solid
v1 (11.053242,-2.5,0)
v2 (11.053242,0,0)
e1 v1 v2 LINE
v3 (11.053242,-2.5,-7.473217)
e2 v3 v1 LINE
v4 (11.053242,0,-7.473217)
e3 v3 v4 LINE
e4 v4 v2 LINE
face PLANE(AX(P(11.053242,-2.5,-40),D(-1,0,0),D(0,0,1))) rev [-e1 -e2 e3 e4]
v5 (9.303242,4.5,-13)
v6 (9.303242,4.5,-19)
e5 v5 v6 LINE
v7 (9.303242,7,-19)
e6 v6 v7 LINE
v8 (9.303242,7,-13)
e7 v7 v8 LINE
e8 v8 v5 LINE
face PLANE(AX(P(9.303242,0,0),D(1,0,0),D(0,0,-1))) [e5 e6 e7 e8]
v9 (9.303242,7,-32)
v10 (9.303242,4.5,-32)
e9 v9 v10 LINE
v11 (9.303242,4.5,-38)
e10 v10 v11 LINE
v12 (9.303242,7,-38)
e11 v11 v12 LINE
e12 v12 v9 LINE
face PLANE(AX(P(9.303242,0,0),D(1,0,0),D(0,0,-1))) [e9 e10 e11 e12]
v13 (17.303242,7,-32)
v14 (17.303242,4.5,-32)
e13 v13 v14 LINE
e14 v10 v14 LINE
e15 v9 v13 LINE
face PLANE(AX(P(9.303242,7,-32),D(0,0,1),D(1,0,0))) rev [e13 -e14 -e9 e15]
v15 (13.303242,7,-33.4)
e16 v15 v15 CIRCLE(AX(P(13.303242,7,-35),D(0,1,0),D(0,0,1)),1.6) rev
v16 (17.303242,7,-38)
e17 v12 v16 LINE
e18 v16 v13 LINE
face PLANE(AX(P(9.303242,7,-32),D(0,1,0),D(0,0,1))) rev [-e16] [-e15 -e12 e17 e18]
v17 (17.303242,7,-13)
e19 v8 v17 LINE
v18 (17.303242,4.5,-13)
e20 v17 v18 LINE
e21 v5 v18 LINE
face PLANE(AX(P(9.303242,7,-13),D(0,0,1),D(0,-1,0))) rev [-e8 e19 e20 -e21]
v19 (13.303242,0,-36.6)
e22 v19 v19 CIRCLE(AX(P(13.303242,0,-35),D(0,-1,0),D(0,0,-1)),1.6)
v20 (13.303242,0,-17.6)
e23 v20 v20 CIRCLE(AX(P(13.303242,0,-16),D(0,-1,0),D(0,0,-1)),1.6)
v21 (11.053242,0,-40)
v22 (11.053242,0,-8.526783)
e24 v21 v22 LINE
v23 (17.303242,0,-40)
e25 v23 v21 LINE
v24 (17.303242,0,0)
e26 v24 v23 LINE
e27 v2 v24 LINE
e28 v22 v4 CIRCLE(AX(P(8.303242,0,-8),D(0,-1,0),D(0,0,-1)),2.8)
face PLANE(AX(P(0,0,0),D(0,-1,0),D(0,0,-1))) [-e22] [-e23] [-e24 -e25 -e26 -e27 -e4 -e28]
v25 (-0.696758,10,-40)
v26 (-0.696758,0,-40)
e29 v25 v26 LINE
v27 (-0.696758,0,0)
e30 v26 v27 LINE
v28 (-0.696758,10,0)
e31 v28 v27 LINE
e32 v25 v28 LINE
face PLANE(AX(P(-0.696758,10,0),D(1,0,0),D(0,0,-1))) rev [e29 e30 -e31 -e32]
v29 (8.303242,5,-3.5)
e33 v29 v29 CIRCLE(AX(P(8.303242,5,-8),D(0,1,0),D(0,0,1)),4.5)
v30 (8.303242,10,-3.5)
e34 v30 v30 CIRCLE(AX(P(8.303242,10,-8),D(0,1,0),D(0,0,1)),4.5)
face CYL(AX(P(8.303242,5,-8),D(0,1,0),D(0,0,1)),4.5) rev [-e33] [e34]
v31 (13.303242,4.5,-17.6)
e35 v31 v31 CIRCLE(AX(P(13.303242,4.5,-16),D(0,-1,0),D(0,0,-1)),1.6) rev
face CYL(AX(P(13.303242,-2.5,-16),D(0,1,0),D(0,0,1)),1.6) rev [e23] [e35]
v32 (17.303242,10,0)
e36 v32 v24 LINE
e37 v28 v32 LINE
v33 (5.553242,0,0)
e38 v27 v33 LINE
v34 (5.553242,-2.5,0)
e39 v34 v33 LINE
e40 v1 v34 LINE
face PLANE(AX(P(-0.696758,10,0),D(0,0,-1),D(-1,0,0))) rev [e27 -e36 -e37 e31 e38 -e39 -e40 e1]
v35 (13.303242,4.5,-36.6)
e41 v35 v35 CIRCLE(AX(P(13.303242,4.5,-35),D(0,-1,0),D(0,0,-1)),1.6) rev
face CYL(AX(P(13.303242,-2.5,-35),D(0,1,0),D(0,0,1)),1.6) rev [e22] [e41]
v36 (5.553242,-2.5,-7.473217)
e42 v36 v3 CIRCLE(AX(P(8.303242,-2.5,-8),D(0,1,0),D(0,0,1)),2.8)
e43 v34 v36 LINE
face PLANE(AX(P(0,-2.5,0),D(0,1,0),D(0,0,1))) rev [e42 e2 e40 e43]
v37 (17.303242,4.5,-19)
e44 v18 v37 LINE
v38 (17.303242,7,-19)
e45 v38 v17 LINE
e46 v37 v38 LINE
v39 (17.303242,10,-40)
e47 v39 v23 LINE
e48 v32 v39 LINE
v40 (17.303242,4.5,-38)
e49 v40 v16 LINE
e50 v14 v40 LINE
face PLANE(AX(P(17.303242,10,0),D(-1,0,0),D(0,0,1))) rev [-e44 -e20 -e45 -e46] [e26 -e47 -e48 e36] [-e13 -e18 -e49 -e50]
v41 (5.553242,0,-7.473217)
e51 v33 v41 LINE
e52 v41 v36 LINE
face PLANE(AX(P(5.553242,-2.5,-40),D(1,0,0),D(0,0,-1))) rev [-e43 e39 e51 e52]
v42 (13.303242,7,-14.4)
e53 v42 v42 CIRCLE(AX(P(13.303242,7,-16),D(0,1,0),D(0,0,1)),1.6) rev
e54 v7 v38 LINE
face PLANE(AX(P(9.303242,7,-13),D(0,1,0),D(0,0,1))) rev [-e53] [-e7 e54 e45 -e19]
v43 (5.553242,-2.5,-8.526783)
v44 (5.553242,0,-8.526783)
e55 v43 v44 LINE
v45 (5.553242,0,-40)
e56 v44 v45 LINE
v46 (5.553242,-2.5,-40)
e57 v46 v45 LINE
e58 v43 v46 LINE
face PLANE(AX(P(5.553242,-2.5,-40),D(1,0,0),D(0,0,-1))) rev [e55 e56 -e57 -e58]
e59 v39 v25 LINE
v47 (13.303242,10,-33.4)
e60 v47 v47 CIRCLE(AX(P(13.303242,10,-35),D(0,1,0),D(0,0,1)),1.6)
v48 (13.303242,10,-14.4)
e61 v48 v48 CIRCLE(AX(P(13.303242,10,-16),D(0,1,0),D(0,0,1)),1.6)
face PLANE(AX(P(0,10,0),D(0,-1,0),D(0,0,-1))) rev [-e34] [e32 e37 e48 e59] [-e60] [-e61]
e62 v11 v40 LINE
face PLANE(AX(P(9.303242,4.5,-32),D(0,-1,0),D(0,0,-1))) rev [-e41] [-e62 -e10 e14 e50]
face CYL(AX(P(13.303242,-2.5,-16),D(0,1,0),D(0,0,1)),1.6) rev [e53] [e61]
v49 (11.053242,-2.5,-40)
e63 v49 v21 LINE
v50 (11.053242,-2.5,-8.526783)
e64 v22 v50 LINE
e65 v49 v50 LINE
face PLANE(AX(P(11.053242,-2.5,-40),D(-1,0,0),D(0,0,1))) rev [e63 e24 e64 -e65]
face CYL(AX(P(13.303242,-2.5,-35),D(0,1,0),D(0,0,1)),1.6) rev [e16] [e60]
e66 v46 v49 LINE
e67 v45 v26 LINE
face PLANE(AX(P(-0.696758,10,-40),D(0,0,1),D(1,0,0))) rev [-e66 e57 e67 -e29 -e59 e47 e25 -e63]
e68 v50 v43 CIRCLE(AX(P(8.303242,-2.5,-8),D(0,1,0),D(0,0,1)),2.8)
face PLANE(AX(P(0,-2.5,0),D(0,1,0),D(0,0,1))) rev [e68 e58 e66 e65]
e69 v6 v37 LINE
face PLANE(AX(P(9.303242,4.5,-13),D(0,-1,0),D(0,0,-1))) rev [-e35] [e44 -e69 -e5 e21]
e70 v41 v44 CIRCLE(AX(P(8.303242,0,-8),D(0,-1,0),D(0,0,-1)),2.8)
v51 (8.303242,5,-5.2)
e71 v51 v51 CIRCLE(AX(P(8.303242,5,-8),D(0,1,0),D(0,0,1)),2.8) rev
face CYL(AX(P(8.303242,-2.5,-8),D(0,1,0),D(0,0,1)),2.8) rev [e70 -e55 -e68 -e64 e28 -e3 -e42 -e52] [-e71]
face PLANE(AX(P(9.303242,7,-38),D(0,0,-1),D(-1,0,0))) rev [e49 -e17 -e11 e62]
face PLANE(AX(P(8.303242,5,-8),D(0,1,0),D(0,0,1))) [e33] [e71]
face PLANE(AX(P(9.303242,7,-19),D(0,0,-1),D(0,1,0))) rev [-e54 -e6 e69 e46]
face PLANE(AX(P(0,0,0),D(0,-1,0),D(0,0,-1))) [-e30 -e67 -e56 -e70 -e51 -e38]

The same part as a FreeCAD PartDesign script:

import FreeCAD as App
import Part
import Sketcher
from FreeCAD import Vector
Q = App.Units.Quantity


def add_polygon(sketch, points):
    """Adds a closed chain of lines whose ends are joined by coincident constraints."""
    first, n = sketch.GeometryCount, len(points)
    for a, b in zip(points, points[1:] + points[:1]):
        sketch.addGeometry(Part.LineSegment(App.Vector(*a, 0), App.Vector(*b, 0)), False)
    for i in range(n):
        sketch.addConstraint(Sketcher.Constraint("Coincident", first + i, 2, first + (i + 1) % n, 1))

doc = App.newDocument("Part")
body = doc.addObject("PartDesign::Body", "Body")

sketch1 = doc.addObject("Sketcher::SketchObject", "Sketch")
body.addObject(sketch1)
sketch1.AttachmentSupport = (doc.XZ_Plane, [""])
sketch1.MapMode = "FlatFace"
add_polygon(sketch1, [(-0.696758, -40), (-0.696758, 0), (17.303242, 0), (17.303242, -40)])
sketch1.addConstraint(Sketcher.Constraint("Vertical", 0))
sketch1.addConstraint(Sketcher.Constraint("Horizontal", 1))
sketch1.addConstraint(Sketcher.Constraint("Vertical", 2))
sketch1.addConstraint(Sketcher.Constraint("Horizontal", 3))
sketch1.addConstraint(Sketcher.Constraint("PointOnObject", 0, 2, -1))
sketch1.addConstraint(Sketcher.Constraint("DistanceX", 1, 1, 1, 2, Q("18 mm")))
sketch1.addConstraint(Sketcher.Constraint("DistanceY", 0, 1, 0, 2, Q("40 mm")))
sketch1.addConstraint(Sketcher.Constraint("DistanceX", 0, 2, -1, 1, Q("0.696758 mm")))
pad1 = doc.addObject("PartDesign::Pad", "Pad")
body.addObject(pad1)
pad1.Profile = sketch1
pad1.Length = 10
pad1.Reversed = True

sketch2 = doc.addObject("Sketcher::SketchObject", "Sketch001")
body.addObject(sketch2)
sketch2.AttachmentSupport = (doc.XZ_Plane, [""])
sketch2.MapMode = "FlatFace"
add_polygon(sketch2, [(5.553242, 0), (5.553242, -40), (11.053242, -40), (11.053242, 0)])
sketch2.addConstraint(Sketcher.Constraint("Vertical", 0))
sketch2.addConstraint(Sketcher.Constraint("Horizontal", 1))
sketch2.addConstraint(Sketcher.Constraint("Vertical", 2))
sketch2.addConstraint(Sketcher.Constraint("Horizontal", 3))
sketch2.addConstraint(Sketcher.Constraint("PointOnObject", 2, 2, -1))
sketch2.addConstraint(Sketcher.Constraint("DistanceY", 0, 2, 0, 1, Q("40 mm")))
sketch2.addConstraint(Sketcher.Constraint("DistanceX", 1, 1, 1, 2, Q("5.5 mm")))
sketch2.addConstraint(Sketcher.Constraint("DistanceX", -1, 1, 0, 2, Q("5.553242 mm")))
pad2 = doc.addObject("PartDesign::Pad", "Pad001")
body.addObject(pad2)
pad2.Profile = sketch2
pad2.Length = 2.5

sketch3 = doc.addObject("Sketcher::SketchObject", "Sketch002")
body.addObject(sketch3)
sketch3.AttachmentSupport = (doc.XZ_Plane, [""])
sketch3.MapMode = "FlatFace"
sketch3.AttachmentOffset = App.Placement(Vector(0, 0, -10), App.Rotation())
sketch3.addGeometry(Part.Circle(Vector(8.303242, -8, 0), Vector(0, 0, 1), 2.8), False)
sketch3.addConstraint(Sketcher.Constraint("Diameter", 0, Q("5.6 mm")))
sketch3.addConstraint(Sketcher.Constraint("DistanceY", 0, 3, -1, 1, Q("8 mm")))
sketch3.addConstraint(Sketcher.Constraint("DistanceX", -1, 1, 0, 3, Q("8.303242 mm")))
pocket1 = doc.addObject("PartDesign::Pocket", "Pocket")
body.addObject(pocket1)
pocket1.Profile = sketch3
pocket1.Type = "ThroughAll"
pocket1.Reversed = True

sketch4 = doc.addObject("Sketcher::SketchObject", "Sketch003")
body.addObject(sketch4)
sketch4.AttachmentSupport = (doc.XZ_Plane, [""])
sketch4.MapMode = "FlatFace"
sketch4.AttachmentOffset = App.Placement(Vector(0, 0, -10), App.Rotation())
sketch4.addGeometry(Part.Circle(Vector(8.303242, -8, 0), Vector(0, 0, 1), 4.5), False)
sketch4.addConstraint(Sketcher.Constraint("Diameter", 0, Q("9 mm")))
sketch4.addConstraint(Sketcher.Constraint("DistanceY", 0, 3, -1, 1, Q("8 mm")))
sketch4.addConstraint(Sketcher.Constraint("DistanceX", -1, 1, 0, 3, Q("8.303242 mm")))
pocket2 = doc.addObject("PartDesign::Pocket", "Pocket001")
body.addObject(pocket2)
pocket2.Profile = sketch4
pocket2.Length = 5
pocket2.Reversed = True

sketch5 = doc.addObject("Sketcher::SketchObject", "Sketch004")
body.addObject(sketch5)
sketch5.AttachmentSupport = (doc.XZ_Plane, [""])
sketch5.MapMode = "FlatFace"
sketch5.AttachmentOffset = App.Placement(Vector(0, 0, -10), App.Rotation())
sketch5.addGeometry(Part.Circle(Vector(13.303242, -16, 0), Vector(0, 0, 1), 1.6), False)
sketch5.addGeometry(Part.Circle(Vector(13.303242, -35, 0), Vector(0, 0, 1), 1.6), False)
sketch5.addConstraint(Sketcher.Constraint("Equal", 0, 1))
sketch5.addConstraint(Sketcher.Constraint("Vertical", 0, 3, 1, 3))
sketch5.addConstraint(Sketcher.Constraint("Diameter", 0, Q("3.2 mm")))
sketch5.addConstraint(Sketcher.Constraint("DistanceY", 0, 3, -1, 1, Q("16 mm")))
sketch5.addConstraint(Sketcher.Constraint("DistanceY", 1, 3, -1, 1, Q("35 mm")))
sketch5.addConstraint(Sketcher.Constraint("DistanceX", -1, 1, 0, 3, Q("13.303242 mm")))
pocket3 = doc.addObject("PartDesign::Pocket", "Pocket002")
body.addObject(pocket3)
pocket3.Profile = sketch5
pocket3.Type = "ThroughAll"
pocket3.Reversed = True

sketch6 = doc.addObject("Sketcher::SketchObject", "Sketch005")
body.addObject(sketch6)
sketch6.AttachmentSupport = (doc.YZ_Plane, [""])
sketch6.MapMode = "FlatFace"
sketch6.AttachmentOffset = App.Placement(Vector(0, 0, 17.303242), App.Rotation())
add_polygon(sketch6, [(7, -13), (4.5, -13), (4.5, -19), (7, -19)])
add_polygon(sketch6, [(7, -32), (4.5, -32), (4.5, -38), (7, -38)])
sketch6.addConstraint(Sketcher.Constraint("Horizontal", 0))
sketch6.addConstraint(Sketcher.Constraint("Vertical", 1))
sketch6.addConstraint(Sketcher.Constraint("Horizontal", 2))
sketch6.addConstraint(Sketcher.Constraint("Vertical", 3))
sketch6.addConstraint(Sketcher.Constraint("Horizontal", 4))
sketch6.addConstraint(Sketcher.Constraint("Vertical", 5))
sketch6.addConstraint(Sketcher.Constraint("Horizontal", 6))
sketch6.addConstraint(Sketcher.Constraint("Vertical", 7))
sketch6.addConstraint(Sketcher.Constraint("Vertical", 1, 2, 4, 2))
sketch6.addConstraint(Sketcher.Constraint("Vertical", 3, 2, 6, 2))
sketch6.addConstraint(Sketcher.Constraint("Equal", 3, 5))
sketch6.addConstraint(Sketcher.Constraint("DistanceY", 1, 2, 1, 1, Q("6 mm")))
sketch6.addConstraint(Sketcher.Constraint("DistanceX", 0, 2, 0, 1, Q("2.5 mm")))
sketch6.addConstraint(Sketcher.Constraint("DistanceY", 0, 2, -1, 1, Q("13 mm")))
sketch6.addConstraint(Sketcher.Constraint("DistanceX", -1, 1, 2, 2, Q("7 mm")))
sketch6.addConstraint(Sketcher.Constraint("DistanceY", 4, 2, -1, 1, Q("32 mm")))
pocket4 = doc.addObject("PartDesign::Pocket", "Pocket003")
body.addObject(pocket4)
pocket4.Profile = sketch6
pocket4.Length = 8

doc.recompute()
